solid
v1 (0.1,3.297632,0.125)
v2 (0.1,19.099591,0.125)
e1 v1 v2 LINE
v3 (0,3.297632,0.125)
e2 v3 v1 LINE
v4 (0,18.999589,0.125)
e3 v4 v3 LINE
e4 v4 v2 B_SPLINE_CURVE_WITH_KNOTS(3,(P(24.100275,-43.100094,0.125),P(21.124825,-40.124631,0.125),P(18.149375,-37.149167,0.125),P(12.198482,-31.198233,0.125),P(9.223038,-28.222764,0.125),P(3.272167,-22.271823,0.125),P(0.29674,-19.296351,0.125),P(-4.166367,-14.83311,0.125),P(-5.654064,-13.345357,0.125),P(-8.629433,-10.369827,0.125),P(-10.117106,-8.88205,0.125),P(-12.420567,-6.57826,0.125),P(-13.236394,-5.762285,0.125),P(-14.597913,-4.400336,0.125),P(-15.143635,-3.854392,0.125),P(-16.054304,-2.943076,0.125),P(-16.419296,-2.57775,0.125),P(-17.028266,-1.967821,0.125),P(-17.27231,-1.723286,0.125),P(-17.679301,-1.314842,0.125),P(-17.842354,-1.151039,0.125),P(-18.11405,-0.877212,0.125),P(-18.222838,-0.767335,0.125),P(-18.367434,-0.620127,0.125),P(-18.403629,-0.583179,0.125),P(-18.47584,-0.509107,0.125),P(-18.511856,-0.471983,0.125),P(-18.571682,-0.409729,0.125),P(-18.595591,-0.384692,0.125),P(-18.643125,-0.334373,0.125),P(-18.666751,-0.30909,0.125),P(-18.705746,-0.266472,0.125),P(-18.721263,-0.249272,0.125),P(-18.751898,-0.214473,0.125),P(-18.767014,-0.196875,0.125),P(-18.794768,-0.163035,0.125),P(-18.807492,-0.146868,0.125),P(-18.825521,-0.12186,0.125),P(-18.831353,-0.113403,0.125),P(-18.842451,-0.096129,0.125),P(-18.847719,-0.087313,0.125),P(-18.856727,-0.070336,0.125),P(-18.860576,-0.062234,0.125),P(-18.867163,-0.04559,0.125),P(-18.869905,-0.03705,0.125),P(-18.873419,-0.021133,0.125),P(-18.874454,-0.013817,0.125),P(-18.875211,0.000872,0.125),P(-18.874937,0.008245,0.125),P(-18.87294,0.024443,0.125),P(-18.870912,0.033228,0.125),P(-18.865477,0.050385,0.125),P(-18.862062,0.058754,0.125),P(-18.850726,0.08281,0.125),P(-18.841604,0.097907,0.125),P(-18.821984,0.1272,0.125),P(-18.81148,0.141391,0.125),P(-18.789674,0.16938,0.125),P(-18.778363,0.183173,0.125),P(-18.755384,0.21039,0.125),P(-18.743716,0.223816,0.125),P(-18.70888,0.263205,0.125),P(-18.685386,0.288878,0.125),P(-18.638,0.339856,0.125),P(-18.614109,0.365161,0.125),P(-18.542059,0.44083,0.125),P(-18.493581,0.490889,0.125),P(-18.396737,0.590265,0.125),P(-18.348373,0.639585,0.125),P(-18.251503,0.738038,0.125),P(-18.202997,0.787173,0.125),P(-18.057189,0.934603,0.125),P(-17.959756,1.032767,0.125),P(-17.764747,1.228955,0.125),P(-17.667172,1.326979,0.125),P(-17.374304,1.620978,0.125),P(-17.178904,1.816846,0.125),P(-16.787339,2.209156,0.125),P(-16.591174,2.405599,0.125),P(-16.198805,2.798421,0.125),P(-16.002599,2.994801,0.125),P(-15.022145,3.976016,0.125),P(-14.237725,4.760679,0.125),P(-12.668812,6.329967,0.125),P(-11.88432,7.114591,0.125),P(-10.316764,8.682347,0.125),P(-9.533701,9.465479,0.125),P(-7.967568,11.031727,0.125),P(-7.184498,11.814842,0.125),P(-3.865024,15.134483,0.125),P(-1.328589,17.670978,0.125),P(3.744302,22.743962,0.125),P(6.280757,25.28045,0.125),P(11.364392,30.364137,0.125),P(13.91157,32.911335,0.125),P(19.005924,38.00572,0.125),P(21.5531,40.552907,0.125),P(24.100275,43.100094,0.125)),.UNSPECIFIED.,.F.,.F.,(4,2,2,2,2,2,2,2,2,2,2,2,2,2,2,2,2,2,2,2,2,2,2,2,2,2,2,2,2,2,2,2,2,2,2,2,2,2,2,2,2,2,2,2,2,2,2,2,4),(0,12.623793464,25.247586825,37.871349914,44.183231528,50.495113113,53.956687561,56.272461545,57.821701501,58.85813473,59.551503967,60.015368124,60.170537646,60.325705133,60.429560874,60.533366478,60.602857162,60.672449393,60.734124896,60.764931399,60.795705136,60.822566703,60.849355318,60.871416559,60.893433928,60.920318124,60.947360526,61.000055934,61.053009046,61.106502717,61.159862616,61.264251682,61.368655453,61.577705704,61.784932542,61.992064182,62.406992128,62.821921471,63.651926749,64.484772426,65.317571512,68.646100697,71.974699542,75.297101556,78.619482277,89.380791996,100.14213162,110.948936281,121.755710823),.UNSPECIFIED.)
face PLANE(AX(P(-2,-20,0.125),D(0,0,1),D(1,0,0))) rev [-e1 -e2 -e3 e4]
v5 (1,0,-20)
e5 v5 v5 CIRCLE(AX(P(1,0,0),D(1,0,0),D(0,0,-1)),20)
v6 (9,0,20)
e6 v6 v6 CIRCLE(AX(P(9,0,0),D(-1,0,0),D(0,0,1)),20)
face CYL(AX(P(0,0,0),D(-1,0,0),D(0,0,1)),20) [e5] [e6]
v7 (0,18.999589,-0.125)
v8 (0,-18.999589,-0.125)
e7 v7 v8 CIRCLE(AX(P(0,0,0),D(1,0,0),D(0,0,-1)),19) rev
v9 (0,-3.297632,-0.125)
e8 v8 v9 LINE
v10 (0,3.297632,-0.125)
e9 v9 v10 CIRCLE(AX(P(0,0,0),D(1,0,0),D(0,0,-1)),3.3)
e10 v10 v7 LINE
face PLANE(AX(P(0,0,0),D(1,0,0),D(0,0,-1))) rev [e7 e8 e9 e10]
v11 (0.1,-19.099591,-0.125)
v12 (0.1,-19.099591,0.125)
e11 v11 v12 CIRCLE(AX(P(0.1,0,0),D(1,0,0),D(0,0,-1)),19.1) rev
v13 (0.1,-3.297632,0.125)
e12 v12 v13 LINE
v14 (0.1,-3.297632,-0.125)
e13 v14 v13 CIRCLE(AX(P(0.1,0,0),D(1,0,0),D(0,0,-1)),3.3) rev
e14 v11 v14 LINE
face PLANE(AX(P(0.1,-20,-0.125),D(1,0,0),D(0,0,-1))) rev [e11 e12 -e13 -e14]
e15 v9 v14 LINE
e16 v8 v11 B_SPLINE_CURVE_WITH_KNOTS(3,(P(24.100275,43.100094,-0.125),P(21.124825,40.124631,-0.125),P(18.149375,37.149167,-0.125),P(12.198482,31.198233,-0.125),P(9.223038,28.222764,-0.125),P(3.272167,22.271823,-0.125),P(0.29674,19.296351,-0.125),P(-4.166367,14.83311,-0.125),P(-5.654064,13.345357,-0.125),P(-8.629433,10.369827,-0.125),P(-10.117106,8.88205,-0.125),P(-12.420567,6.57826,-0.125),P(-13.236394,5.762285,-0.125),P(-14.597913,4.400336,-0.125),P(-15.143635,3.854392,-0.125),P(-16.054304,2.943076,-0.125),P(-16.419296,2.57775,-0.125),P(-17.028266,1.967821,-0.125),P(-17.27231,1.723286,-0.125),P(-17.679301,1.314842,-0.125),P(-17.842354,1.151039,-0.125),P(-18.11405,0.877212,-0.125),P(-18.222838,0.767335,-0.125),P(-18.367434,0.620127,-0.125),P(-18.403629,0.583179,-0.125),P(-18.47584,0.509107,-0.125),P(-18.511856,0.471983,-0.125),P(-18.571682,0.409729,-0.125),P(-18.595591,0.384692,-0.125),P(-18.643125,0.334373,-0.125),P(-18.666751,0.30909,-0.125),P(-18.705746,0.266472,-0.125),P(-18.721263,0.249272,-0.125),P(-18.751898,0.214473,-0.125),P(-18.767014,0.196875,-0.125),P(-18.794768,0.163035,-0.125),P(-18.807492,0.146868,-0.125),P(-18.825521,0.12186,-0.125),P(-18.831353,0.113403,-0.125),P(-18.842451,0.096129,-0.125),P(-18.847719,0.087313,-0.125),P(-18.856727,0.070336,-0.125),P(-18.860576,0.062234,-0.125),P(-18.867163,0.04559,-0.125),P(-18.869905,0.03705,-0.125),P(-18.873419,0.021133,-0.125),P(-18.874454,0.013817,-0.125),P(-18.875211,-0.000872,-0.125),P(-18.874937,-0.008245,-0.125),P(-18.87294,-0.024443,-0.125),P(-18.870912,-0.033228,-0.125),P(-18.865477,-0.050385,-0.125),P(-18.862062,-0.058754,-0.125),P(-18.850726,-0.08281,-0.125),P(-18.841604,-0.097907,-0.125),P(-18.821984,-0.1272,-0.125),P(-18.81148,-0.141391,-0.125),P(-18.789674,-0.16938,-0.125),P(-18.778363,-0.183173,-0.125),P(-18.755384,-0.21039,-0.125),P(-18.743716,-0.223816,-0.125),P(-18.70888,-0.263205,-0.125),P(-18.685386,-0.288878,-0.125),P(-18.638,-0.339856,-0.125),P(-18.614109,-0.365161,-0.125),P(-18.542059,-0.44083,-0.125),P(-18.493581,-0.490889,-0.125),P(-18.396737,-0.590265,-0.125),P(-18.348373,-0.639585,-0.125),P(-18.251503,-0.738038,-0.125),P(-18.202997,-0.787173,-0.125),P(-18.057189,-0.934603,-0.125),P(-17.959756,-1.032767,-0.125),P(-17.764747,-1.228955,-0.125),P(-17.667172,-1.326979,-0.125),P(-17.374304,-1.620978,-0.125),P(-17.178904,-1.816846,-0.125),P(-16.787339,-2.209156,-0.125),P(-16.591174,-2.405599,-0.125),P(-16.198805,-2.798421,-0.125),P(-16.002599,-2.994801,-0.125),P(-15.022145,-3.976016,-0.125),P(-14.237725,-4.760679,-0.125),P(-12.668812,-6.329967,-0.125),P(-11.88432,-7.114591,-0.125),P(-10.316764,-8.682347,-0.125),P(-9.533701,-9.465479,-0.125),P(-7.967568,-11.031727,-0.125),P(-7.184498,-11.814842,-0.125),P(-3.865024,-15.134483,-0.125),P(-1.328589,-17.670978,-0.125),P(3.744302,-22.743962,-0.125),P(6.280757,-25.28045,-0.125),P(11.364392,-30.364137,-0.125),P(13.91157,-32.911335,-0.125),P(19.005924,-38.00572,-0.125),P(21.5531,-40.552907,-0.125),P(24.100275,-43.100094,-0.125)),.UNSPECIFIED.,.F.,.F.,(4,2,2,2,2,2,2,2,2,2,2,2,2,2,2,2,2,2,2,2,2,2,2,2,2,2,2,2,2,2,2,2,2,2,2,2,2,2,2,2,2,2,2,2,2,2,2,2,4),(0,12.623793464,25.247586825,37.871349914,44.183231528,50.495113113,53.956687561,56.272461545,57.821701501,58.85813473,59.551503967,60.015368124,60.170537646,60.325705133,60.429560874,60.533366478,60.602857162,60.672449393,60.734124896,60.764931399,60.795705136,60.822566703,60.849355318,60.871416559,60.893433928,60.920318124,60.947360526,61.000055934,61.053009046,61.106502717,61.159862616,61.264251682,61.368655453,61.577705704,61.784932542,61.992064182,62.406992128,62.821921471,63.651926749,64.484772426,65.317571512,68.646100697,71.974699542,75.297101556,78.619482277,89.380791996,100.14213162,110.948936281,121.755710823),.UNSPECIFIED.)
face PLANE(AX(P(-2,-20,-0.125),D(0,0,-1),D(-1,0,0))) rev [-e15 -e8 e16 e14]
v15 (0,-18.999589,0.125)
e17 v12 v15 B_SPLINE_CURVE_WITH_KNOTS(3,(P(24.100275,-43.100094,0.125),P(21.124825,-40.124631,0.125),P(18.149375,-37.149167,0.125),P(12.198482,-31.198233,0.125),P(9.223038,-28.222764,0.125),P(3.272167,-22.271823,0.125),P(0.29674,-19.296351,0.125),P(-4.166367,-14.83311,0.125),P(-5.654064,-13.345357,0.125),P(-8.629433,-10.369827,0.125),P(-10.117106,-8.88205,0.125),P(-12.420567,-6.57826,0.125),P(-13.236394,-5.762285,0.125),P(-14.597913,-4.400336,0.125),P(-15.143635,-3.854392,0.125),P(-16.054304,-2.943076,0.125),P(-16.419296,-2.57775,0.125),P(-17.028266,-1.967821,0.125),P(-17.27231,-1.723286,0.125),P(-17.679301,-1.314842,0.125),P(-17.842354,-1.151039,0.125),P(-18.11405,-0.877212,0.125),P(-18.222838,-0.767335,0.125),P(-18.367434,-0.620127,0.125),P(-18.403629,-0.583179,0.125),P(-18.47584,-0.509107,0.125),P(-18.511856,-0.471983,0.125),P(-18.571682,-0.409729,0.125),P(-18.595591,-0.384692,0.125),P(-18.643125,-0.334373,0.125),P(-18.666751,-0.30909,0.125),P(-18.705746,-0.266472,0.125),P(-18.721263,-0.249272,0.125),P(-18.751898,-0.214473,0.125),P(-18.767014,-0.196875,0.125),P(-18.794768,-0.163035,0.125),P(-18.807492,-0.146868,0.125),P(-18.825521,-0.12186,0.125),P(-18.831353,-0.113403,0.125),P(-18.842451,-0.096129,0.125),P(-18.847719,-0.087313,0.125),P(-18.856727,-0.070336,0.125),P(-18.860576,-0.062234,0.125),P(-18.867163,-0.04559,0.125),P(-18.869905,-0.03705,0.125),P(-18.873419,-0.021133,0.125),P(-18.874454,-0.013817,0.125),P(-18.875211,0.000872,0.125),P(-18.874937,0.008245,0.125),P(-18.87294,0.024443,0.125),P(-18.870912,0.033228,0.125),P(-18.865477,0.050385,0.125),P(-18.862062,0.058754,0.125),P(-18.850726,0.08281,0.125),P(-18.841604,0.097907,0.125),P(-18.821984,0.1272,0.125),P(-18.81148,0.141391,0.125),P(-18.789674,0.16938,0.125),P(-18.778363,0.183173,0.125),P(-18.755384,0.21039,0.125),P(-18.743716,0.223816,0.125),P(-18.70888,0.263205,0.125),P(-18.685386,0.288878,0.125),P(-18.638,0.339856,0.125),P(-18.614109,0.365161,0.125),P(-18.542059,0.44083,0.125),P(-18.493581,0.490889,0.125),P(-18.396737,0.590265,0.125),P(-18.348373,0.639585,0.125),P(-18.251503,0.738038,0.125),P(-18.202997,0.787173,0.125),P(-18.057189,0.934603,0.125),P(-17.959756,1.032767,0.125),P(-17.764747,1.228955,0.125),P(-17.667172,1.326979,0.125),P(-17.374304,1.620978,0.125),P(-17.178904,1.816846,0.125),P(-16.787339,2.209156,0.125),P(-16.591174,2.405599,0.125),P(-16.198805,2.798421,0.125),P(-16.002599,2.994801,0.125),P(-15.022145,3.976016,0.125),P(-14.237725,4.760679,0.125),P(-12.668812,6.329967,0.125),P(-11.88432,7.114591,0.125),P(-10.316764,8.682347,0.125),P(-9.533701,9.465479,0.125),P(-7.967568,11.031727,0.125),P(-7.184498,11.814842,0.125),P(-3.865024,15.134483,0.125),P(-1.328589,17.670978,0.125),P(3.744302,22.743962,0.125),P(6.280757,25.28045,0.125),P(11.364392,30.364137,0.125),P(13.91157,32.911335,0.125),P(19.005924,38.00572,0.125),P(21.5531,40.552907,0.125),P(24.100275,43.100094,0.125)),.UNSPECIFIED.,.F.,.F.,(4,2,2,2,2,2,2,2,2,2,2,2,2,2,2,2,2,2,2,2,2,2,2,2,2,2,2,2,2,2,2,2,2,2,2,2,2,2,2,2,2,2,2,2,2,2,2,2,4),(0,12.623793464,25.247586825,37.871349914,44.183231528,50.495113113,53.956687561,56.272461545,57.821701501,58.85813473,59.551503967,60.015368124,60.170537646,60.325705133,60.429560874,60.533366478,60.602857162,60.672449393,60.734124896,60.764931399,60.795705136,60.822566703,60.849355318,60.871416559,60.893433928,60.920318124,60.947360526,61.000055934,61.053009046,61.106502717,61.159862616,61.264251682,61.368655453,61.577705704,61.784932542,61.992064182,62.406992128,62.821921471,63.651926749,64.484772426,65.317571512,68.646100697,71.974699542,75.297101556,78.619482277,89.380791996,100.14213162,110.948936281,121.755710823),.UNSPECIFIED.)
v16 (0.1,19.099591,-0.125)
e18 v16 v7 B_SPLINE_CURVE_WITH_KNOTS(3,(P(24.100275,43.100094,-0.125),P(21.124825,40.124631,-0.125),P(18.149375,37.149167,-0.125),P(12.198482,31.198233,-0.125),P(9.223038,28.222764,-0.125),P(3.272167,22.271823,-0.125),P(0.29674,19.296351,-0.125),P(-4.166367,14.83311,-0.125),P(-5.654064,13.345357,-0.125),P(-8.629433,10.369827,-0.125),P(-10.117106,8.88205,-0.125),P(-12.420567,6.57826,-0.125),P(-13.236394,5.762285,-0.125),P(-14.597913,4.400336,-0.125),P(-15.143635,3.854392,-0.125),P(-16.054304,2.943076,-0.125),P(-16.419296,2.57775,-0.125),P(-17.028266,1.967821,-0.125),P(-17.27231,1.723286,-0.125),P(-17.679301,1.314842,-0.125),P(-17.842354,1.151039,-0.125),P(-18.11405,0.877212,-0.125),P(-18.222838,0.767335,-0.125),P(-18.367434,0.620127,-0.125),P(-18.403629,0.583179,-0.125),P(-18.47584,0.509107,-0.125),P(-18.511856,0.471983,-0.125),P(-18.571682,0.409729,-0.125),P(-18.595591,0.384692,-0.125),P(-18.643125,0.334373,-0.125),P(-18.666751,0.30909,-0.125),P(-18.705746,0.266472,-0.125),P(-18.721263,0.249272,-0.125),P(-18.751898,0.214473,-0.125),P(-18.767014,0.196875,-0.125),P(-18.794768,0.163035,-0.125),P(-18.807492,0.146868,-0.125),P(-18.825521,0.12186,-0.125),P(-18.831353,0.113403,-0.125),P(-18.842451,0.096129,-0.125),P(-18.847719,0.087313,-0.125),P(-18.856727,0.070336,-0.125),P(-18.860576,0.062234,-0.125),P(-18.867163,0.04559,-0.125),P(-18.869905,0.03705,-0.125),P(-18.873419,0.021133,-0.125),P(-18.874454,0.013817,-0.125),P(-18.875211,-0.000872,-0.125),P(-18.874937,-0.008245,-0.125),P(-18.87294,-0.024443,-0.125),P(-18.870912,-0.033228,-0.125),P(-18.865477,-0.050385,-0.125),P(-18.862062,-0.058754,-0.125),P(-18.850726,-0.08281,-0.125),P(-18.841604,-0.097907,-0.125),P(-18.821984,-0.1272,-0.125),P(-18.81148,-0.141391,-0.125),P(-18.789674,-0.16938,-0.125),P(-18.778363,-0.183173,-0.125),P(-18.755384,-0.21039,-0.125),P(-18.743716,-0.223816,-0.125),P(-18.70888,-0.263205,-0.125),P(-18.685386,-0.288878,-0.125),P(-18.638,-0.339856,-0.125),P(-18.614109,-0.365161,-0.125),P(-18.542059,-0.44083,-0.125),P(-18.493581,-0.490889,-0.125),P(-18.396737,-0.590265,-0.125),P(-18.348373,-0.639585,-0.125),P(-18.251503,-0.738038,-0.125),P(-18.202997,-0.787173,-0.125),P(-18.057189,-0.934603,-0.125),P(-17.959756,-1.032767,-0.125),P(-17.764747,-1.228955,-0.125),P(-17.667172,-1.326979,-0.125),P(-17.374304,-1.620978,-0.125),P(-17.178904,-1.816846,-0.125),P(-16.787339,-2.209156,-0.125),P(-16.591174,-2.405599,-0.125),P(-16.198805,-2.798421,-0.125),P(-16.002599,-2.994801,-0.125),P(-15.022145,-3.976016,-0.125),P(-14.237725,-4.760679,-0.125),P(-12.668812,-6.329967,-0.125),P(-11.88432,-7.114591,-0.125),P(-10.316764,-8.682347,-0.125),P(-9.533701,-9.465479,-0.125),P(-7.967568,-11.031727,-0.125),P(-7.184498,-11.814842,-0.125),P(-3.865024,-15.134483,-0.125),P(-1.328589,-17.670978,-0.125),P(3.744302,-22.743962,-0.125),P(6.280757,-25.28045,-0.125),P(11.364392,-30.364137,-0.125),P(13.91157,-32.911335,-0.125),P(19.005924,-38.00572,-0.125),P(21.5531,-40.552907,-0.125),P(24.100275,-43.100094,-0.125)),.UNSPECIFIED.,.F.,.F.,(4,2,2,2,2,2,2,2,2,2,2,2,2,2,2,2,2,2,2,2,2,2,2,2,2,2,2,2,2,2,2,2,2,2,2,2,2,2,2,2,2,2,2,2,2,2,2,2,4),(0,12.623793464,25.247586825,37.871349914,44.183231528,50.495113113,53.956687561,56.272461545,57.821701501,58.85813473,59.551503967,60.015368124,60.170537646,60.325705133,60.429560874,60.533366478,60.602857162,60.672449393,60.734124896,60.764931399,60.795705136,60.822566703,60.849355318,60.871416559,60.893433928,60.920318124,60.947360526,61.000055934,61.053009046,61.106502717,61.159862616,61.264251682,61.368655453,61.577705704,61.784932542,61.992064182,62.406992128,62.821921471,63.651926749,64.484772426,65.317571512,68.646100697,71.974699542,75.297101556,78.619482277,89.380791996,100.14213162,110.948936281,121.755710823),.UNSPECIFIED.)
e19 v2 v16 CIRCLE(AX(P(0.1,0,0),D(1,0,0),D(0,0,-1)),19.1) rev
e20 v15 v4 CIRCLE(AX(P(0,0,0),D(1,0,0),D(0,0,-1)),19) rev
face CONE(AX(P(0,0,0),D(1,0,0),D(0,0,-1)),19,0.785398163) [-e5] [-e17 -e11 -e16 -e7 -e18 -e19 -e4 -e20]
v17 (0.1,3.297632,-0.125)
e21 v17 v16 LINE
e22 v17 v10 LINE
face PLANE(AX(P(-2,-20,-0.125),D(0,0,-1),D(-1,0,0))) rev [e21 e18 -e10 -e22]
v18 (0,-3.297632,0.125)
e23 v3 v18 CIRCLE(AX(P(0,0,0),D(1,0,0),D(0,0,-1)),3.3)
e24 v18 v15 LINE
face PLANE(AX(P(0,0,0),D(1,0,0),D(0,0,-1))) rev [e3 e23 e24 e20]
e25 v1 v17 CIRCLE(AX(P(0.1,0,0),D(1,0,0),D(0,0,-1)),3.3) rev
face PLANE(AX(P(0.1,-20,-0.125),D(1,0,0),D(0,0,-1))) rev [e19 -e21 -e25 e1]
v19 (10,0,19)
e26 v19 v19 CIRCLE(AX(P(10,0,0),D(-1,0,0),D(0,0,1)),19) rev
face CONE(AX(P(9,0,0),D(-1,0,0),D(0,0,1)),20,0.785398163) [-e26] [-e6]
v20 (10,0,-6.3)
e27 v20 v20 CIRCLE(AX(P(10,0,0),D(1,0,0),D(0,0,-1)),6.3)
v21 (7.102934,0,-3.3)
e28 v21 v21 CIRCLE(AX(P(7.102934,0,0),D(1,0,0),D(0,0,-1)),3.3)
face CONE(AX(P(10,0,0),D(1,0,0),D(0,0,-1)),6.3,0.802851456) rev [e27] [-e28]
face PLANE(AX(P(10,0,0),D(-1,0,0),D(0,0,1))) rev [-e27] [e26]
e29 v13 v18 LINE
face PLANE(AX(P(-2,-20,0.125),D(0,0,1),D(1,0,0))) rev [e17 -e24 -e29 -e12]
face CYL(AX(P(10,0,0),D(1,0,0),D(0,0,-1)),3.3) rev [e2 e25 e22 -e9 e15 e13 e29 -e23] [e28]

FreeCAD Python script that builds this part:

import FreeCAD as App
import Part
import Sketcher
Q = App.Units.Quantity


def edges_at(feature, points):
    """Names of the edges that pass closest to the given points."""
    edges = feature.Shape.Edges
    near = lambda p: min(range(len(edges)), key=lambda i: edges[i].distToShape(Part.Vertex(*p))[0])
    return sorted({f"Edge{near(p) + 1}" for p in points})

doc = App.newDocument("Part")
body = doc.addObject("PartDesign::Body", "Body")

# Sketch on XY plane
sketch1 = doc.addObject("Sketcher::SketchObject", "Sketch")
body.addObject(sketch1)
sketch1.AttachmentSupport = (doc.XY_Plane, [""])
sketch1.MapMode = "FlatFace"
sketch1.addGeometry([
    Part.LineSegment(App.Vector(0, 20, 0), App.Vector(0, 0, 0)),
    Part.LineSegment(App.Vector(0, 0, 0), App.Vector(10, 0, 0)),
    Part.LineSegment(App.Vector(10, 0, 0), App.Vector(10, 20, 0)),
    Part.LineSegment(App.Vector(10, 20, 0), App.Vector(0, 20, 0)),
], False)
sketch1.addConstraint([
    Sketcher.Constraint("Coincident", 0, 2, 1, 1),
    Sketcher.Constraint("Coincident", 1, 2, 2, 1),
    Sketcher.Constraint("Coincident", 2, 2, 3, 1),
    Sketcher.Constraint("Coincident", 3, 2, 0, 1),
    Sketcher.Constraint("Vertical", 0),
    Sketcher.Constraint("Horizontal", 1),
    Sketcher.Constraint("Vertical", 2),
    Sketcher.Constraint("Horizontal", 3),
    Sketcher.Constraint("Coincident", 0, 2, -1, 1),
    Sketcher.Constraint("DistanceX", 1, 1, 1, 2, Q("10 mm")),
    Sketcher.Constraint("DistanceY", 0, 2, 0, 1, Q("20 mm")),
])
revolution = doc.addObject("PartDesign::Revolution", "Revolution")
body.addObject(revolution)
revolution.Profile = sketch1
revolution.ReferenceAxis = (sketch1, ["H_Axis"])
revolution.Angle = 360
doc.recompute()

chamfer = doc.addObject("PartDesign::Chamfer", "Chamfer")
body.addObject(chamfer)
chamfer.Base = (revolution, edges_at(revolution, [(10, 0, -20), (0, 0, -20)]))
chamfer.Size = 1

# Sketch on YZ plane
sketch2 = doc.addObject("Sketcher::SketchObject", "Sketch001")
body.addObject(sketch2)
sketch2.AttachmentSupport = (doc.YZ_Plane, [""])
sketch2.MapMode = "FlatFace"
sketch2.AttachmentOffset = App.Placement(App.Vector(0, 0, 10), App.Rotation())
sketch2.addGeometry(Part.Circle(App.Vector(0, 0, 0), App.Vector(0, 0, 1), 3.3), False)
sketch2.addConstraint([
    Sketcher.Constraint("Coincident", 0, 3, -1, 1),
    Sketcher.Constraint("Diameter", 0, Q("6.6 mm")),
])
doc.recompute()
hole = doc.addObject("PartDesign::Hole", "Hole")
body.addObject(hole)
hole.Profile = sketch2
hole.ThreadType = "None"
hole.Diameter = 6.6
hole.DepthType = "ThroughAll"
hole.HoleCutType = "Countersink"
hole.HoleCutDiameter = 12.6
hole.HoleCutCountersinkAngle = 92

# Sketch on XZ plane
sketch3 = doc.addObject("Sketcher::SketchObject", "Sketch002")
body.addObject(sketch3)
sketch3.AttachmentSupport = (doc.XZ_Plane, [""])
sketch3.MapMode = "FlatFace"
sketch3.addGeometry([
    Part.LineSegment(App.Vector(-2, -0.125, 0), App.Vector(-2, 0.125, 0)),
    Part.LineSegment(App.Vector(-2, 0.125, 0), App.Vector(0.1, 0.125, 0)),
    Part.LineSegment(App.Vector(0.1, 0.125, 0), App.Vector(0.1, -0.125, 0)),
    Part.LineSegment(App.Vector(0.1, -0.125, 0), App.Vector(-2, -0.125, 0)),
], False)
sketch3.addConstraint([
    Sketcher.Constraint("Coincident", 0, 2, 1, 1),
    Sketcher.Constraint("Coincident", 1, 2, 2, 1),
    Sketcher.Constraint("Coincident", 2, 2, 3, 1),
    Sketcher.Constraint("Coincident", 3, 2, 0, 1),
    Sketcher.Constraint("Vertical", 0),
    Sketcher.Constraint("Horizontal", 1),
    Sketcher.Constraint("Vertical", 2),
    Sketcher.Constraint("Horizontal", 3),
    Sketcher.Constraint("DistanceX", 1, 1, 1, 2, Q("2.1 mm")),
    Sketcher.Constraint("DistanceX", 0, 2, -1, 1, Q("2 mm")),
    Sketcher.Constraint("DistanceY", 0, 1, 0, 2, Q("0.25 mm")),
    Sketcher.Constraint("DistanceY", -1, 1, 0, 2, Q("0.125 mm")),
])
pocket1 = doc.addObject("PartDesign::Pocket", "Pocket")
body.addObject(pocket1)
pocket1.Profile = sketch3
pocket1.Length = 40
pocket1.Midplane = True

doc.recompute()
